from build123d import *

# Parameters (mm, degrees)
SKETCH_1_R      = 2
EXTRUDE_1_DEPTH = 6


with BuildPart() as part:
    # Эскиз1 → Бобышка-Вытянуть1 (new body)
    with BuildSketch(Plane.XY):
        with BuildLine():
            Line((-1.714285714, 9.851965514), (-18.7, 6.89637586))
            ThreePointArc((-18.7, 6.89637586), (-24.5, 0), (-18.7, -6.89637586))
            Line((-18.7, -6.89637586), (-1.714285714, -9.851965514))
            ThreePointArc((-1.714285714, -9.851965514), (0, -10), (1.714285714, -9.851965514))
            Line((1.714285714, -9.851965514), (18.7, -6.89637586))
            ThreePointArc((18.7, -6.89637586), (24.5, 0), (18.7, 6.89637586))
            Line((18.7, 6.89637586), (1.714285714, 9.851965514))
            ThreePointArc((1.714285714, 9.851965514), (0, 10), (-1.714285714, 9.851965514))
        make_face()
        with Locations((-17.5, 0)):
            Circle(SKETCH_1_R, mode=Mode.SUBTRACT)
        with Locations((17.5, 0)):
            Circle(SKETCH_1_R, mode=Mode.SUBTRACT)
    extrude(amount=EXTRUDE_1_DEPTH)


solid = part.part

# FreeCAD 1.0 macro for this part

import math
import FreeCAD as App
import Part
import Sketcher
from FreeCAD import Vector
Q = App.Units.Quantity

doc = App.newDocument("Part")
body = doc.addObject("PartDesign::Body", "Body")

sketch1 = doc.addObject("Sketcher::SketchObject", "Sketch")
body.addObject(sketch1)
sketch1.AttachmentSupport = (doc.XY_Plane, [""])
sketch1.MapMode = "FlatFace"
sketch1.addGeometry([
    Part.LineSegment(Vector(-1.7, 9.9, 0), Vector(-18.7, 6.9, 0)),
    Part.ArcOfCircle(Part.Circle(Vector(-17.5, 0, 0), Vector(0, 0, 1), 7), math.radians(100), math.radians(260)),
    Part.LineSegment(Vector(-18.7, -6.9, 0), Vector(-1.7, -9.9, 0)),
    Part.ArcOfCircle(Part.Circle(Vector(0, 0, 0), Vector(0, 0, 1), 10), math.radians(-99.87), math.radians(-80.13)),
    Part.LineSegment(Vector(1.7, -9.9, 0), Vector(18.7, -6.9, 0)),
    Part.ArcOfCircle(Part.Circle(Vector(17.5, 0, 0), Vector(0, 0, 1), 7), math.radians(-80), math.radians(80)),
    Part.LineSegment(Vector(18.7, 6.9, 0), Vector(1.7, 9.9, 0)),
    Part.ArcOfCircle(Part.Circle(Vector(0, 0, 0), Vector(0, 0, 1), 10), math.radians(80.13), math.radians(99.87)),
    Part.Circle(Vector(-17.5, 0, 0), Vector(0, 0, 1), 2),
    Part.Circle(Vector(17.5, 0, 0), Vector(0, 0, 1), 2),
], False)
sketch1.addConstraint([
    Sketcher.Constraint("Tangent", 0, 2, 1, 1),
    Sketcher.Constraint("Tangent", 1, 2, 2, 1),
    Sketcher.Constraint("Tangent", 2, 2, 3, 1),
    Sketcher.Constraint("Tangent", 3, 2, 4, 1),
    Sketcher.Constraint("Tangent", 4, 2, 5, 1),
    Sketcher.Constraint("Tangent", 5, 2, 6, 1),
    Sketcher.Constraint("Tangent", 6, 2, 7, 1),
    Sketcher.Constraint("Tangent", 7, 2, 0, 1),
    Sketcher.Constraint("Coincident", 3, 3, -1, 1),
    Sketcher.Constraint("Coincident", 7, 3, -1, 1),
    Sketcher.Constraint("Coincident", 8, 3, 1, 3),
    Sketcher.Constraint("Coincident", 9, 3, 5, 3),
    Sketcher.Constraint("Equal", 1, 5),
    Sketcher.Constraint("Equal", 3, 7),
    Sketcher.Constraint("Equal", 8, 9),
    Sketcher.Constraint("Symmetric", 1, 3, 5, 3, -1, 1),
    Sketcher.Constraint("PointOnObject", 1, 3, -1),
    Sketcher.Constraint("Diameter", 8, Q("4 mm")),
    Sketcher.Constraint("Radius", 1, Q("7 mm")),
    Sketcher.Constraint("Radius", 3, Q("10 mm")),
    Sketcher.Constraint("DistanceX", 1, 3, 5, 3, Q("35 mm")),
])
pad1 = doc.addObject("PartDesign::Pad", "Pad")
body.addObject(pad1)
pad1.Profile = sketch1
pad1.Length = 6

doc.recompute()
